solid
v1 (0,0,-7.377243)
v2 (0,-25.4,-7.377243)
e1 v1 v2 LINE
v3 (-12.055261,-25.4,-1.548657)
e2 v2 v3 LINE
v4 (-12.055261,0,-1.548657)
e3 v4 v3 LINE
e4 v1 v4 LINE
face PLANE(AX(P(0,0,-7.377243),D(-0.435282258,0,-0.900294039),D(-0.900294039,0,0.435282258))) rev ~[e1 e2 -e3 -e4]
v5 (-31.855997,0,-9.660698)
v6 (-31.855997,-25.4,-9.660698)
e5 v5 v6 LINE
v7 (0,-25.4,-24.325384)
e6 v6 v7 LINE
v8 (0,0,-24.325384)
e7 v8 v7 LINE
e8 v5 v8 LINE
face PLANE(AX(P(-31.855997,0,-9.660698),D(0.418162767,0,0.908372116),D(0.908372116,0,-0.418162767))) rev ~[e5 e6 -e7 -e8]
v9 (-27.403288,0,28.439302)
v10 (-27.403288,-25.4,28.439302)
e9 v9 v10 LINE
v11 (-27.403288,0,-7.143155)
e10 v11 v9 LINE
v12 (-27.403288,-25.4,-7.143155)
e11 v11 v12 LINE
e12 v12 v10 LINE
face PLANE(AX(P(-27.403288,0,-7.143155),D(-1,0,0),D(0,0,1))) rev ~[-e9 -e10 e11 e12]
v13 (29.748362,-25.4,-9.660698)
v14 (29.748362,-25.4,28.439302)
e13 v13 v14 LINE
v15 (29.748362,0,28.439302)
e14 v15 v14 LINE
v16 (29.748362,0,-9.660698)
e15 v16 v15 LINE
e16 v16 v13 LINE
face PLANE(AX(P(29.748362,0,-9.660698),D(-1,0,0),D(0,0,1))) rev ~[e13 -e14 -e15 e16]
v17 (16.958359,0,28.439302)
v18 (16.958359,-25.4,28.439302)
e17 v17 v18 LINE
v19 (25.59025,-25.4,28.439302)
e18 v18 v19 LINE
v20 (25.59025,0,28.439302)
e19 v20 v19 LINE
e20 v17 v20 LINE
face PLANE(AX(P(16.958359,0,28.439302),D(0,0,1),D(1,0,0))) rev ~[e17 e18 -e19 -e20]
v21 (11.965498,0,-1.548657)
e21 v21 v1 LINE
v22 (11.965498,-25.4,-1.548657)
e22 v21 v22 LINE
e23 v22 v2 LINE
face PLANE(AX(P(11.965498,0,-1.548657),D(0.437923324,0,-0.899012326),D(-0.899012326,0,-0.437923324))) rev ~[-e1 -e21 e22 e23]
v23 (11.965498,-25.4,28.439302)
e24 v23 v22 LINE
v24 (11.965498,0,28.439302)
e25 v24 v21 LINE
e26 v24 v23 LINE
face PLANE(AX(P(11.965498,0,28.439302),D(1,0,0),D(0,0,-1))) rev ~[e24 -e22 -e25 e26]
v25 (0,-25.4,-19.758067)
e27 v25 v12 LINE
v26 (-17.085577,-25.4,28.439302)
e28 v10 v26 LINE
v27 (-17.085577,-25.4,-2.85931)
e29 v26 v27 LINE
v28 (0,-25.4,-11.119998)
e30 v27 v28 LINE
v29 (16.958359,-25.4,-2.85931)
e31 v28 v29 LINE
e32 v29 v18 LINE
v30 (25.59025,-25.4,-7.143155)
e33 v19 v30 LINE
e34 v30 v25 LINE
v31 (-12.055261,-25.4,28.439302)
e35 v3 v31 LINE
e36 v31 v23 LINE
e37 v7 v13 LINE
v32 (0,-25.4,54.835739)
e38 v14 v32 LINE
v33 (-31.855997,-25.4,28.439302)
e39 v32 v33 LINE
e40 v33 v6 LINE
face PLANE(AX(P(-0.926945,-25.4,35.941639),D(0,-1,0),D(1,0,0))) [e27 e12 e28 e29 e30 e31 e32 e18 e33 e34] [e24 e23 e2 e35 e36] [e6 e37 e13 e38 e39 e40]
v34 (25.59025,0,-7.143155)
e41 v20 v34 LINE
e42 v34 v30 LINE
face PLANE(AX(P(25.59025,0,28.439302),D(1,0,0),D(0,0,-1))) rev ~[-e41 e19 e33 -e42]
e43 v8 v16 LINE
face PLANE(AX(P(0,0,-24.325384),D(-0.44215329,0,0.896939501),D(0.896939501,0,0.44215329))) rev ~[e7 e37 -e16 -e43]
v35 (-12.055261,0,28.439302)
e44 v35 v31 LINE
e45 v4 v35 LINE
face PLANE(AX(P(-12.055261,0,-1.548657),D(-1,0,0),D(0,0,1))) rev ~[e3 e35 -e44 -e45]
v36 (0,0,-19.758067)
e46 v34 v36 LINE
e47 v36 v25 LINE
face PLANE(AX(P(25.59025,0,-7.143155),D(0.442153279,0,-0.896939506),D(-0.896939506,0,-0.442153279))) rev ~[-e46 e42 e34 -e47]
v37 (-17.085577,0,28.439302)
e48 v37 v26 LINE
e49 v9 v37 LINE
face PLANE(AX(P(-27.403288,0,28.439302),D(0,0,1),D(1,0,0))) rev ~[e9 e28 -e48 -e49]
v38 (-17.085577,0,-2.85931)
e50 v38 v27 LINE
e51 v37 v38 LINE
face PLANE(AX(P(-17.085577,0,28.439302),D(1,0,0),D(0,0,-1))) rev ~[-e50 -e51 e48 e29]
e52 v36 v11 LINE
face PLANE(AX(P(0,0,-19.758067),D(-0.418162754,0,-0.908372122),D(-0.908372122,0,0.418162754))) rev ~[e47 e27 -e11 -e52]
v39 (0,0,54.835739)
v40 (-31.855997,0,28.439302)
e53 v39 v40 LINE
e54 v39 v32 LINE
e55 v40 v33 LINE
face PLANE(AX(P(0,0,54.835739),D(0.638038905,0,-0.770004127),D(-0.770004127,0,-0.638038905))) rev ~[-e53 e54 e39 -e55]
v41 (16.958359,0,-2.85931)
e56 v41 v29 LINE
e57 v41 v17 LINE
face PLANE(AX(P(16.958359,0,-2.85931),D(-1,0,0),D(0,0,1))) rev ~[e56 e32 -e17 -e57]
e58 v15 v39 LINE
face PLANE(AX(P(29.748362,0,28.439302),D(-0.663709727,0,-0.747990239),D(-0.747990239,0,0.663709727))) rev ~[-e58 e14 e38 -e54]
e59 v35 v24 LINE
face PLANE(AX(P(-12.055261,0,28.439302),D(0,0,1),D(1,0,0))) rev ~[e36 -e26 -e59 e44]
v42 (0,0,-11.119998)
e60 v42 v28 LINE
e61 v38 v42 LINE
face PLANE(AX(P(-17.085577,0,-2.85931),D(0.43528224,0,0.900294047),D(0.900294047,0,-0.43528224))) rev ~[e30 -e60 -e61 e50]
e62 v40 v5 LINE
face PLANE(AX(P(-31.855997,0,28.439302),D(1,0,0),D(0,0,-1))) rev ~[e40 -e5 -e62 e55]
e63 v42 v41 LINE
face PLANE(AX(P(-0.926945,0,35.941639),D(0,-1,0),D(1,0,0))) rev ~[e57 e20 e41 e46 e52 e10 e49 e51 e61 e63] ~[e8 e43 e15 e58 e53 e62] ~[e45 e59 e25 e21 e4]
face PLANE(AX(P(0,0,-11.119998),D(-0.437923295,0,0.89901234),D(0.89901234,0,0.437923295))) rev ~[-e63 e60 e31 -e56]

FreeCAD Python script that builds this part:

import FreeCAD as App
import Part
import Sketcher
from FreeCAD import Vector
Q = App.Units.Quantity

doc = App.newDocument("Part")
body = doc.addObject("PartDesign::Body", "Body")

sketch1 = body.newObject("Sketcher::SketchObject", "Sketch")
sketch1.AttachmentSupport = (doc.getObject("XZ_Plane"), [""])
sketch1.MapMode = "FlatFace"
sketch1.addGeometry([
    Part.LineSegment(Vector(30, 28, 0), Vector(0, 55, 0)),
    Part.LineSegment(Vector(0, 55, 0), Vector(-32, 28, 0)),
    Part.LineSegment(Vector(-32, 28, 0), Vector(-32, -10, 0)),
    Part.LineSegment(Vector(-32, -10, 0), Vector(0, -24, 0)),
    Part.LineSegment(Vector(0, -24, 0), Vector(30, -10, 0)),
    Part.LineSegment(Vector(30, -10, 0), Vector(30, 28, 0)),
    Part.LineSegment(Vector(-27, 28, 0), Vector(-17, 28, 0)),
    Part.LineSegment(Vector(-17, 28, 0), Vector(-17, -3, 0)),
    Part.LineSegment(Vector(-17, -3, 0), Vector(0, -11, 0)),
    Part.LineSegment(Vector(0, -11, 0), Vector(17, -3, 0)),
    Part.LineSegment(Vector(17, -3, 0), Vector(17, 28, 0)),
    Part.LineSegment(Vector(17, 28, 0), Vector(26, 28, 0)),
    Part.LineSegment(Vector(26, 28, 0), Vector(26, -7, 0)),
    Part.LineSegment(Vector(26, -7, 0), Vector(0, -20, 0)),
    Part.LineSegment(Vector(0, -20, 0), Vector(-27, -7, 0)),
    Part.LineSegment(Vector(-27, -7, 0), Vector(-27, 28, 0)),
    Part.LineSegment(Vector(-12, 28, 0), Vector(12, 28, 0)),
    Part.LineSegment(Vector(12, 28, 0), Vector(12, -2, 0)),
    Part.LineSegment(Vector(12, -2, 0), Vector(0, -7, 0)),
    Part.LineSegment(Vector(0, -7, 0), Vector(-12, -2, 0)),
    Part.LineSegment(Vector(-12, -2, 0), Vector(-12, 28, 0)),
], False)
sketch1.addConstraint([
    Sketcher.Constraint("Coincident", 0, 2, 1, 1),
    Sketcher.Constraint("Coincident", 1, 2, 2, 1),
    Sketcher.Constraint("Coincident", 2, 2, 3, 1),
    Sketcher.Constraint("Coincident", 3, 2, 4, 1),
    Sketcher.Constraint("Coincident", 4, 2, 5, 1),
    Sketcher.Constraint("Coincident", 5, 2, 0, 1),
    Sketcher.Constraint("Coincident", 6, 2, 7, 1),
    Sketcher.Constraint("Coincident", 7, 2, 8, 1),
    Sketcher.Constraint("Coincident", 8, 2, 9, 1),
    Sketcher.Constraint("Coincident", 9, 2, 10, 1),
    Sketcher.Constraint("Coincident", 10, 2, 11, 1),
    Sketcher.Constraint("Coincident", 11, 2, 12, 1),
    Sketcher.Constraint("Coincident", 12, 2, 13, 1),
    Sketcher.Constraint("Coincident", 13, 2, 14, 1),
    Sketcher.Constraint("Coincident", 14, 2, 15, 1),
    Sketcher.Constraint("Coincident", 15, 2, 6, 1),
    Sketcher.Constraint("Coincident", 16, 2, 17, 1),
    Sketcher.Constraint("Coincident", 17, 2, 18, 1),
    Sketcher.Constraint("Coincident", 18, 2, 19, 1),
    Sketcher.Constraint("Coincident", 19, 2, 20, 1),
    Sketcher.Constraint("Coincident", 20, 2, 16, 1),
    Sketcher.Constraint("Vertical", 2),
    Sketcher.Constraint("Vertical", 5),
    Sketcher.Constraint("Horizontal", 6),
    Sketcher.Constraint("Vertical", 7),
    Sketcher.Constraint("Vertical", 10),
    Sketcher.Constraint("Horizontal", 11),
    Sketcher.Constraint("Vertical", 12),
    Sketcher.Constraint("Vertical", 15),
    Sketcher.Constraint("Horizontal", 16),
    Sketcher.Constraint("Vertical", 17),
    Sketcher.Constraint("Vertical", 20),
    Sketcher.Constraint("PointOnObject", 0, 2, -2),
    Sketcher.Constraint("PointOnObject", 3, 2, -2),
    Sketcher.Constraint("PointOnObject", 8, 2, -2),
    Sketcher.Constraint("PointOnObject", 13, 2, -2),
    Sketcher.Constraint("PointOnObject", 18, 2, -2),
    Sketcher.Constraint("Parallel", 4, 13),
    Sketcher.Constraint("Parallel", 3, 14),
    Sketcher.Constraint("Parallel", 9, 18),
    Sketcher.Constraint("Parallel", 8, 19),
    Sketcher.Constraint("Horizontal", 2, 2, 4, 2),
    Sketcher.Constraint("Horizontal", 1, 2, 5, 2),
    Sketcher.Constraint("Horizontal", 5, 2, 6, 2),
    Sketcher.Constraint("Horizontal", 7, 2, 9, 2),
    Sketcher.Constraint("Horizontal", 6, 2, 10, 2),
    Sketcher.Constraint("Horizontal", 12, 2, 14, 2),
    Sketcher.Constraint("Horizontal", 15, 2, 16, 2),
    Sketcher.Constraint("Horizontal", 17, 2, 19, 2),
    Sketcher.Constraint("DistanceY", 2, 2, 2, 1, Q("1.5 in")),
    Sketcher.Constraint("Distance", 18, Q("0.5240002 in")),
    Sketcher.Constraint("DistanceX", 6, 1, 6, 2, 10.317711),
    Sketcher.Constraint("DistanceX", 11, 1, 11, 2, 8.631891),
    Sketcher.Constraint("DistanceX", 16, 1, 16, 2, 24.020759),
    Sketcher.Constraint("DistanceY", 17, 2, 17, 1, 29.987959),
    Sketcher.Constraint("DistanceY", 8, 2, -1, 1, 11.119998),
    Sketcher.Constraint("DistanceY", 8, 2, 4, 2, 1.4593),
    Sketcher.Constraint("Distance", 4, 33.16652),
    Sketcher.Constraint("Distance", 9, 18.863322),
    Sketcher.Constraint("Distance", 13, 28.530631),
    Sketcher.Constraint("Distance", 14, 30.167469),
    Sketcher.Constraint("DistanceY", 12, 2, 12, 1, 35.582457),
    Sketcher.Constraint("DistanceY", -1, 1, 0, 2, 54.835739),
])
pad1 = body.newObject("PartDesign::Pad", "Pad")
pad1.Profile = sketch1
pad1.Length = Q("1 in")

doc.recompute()
